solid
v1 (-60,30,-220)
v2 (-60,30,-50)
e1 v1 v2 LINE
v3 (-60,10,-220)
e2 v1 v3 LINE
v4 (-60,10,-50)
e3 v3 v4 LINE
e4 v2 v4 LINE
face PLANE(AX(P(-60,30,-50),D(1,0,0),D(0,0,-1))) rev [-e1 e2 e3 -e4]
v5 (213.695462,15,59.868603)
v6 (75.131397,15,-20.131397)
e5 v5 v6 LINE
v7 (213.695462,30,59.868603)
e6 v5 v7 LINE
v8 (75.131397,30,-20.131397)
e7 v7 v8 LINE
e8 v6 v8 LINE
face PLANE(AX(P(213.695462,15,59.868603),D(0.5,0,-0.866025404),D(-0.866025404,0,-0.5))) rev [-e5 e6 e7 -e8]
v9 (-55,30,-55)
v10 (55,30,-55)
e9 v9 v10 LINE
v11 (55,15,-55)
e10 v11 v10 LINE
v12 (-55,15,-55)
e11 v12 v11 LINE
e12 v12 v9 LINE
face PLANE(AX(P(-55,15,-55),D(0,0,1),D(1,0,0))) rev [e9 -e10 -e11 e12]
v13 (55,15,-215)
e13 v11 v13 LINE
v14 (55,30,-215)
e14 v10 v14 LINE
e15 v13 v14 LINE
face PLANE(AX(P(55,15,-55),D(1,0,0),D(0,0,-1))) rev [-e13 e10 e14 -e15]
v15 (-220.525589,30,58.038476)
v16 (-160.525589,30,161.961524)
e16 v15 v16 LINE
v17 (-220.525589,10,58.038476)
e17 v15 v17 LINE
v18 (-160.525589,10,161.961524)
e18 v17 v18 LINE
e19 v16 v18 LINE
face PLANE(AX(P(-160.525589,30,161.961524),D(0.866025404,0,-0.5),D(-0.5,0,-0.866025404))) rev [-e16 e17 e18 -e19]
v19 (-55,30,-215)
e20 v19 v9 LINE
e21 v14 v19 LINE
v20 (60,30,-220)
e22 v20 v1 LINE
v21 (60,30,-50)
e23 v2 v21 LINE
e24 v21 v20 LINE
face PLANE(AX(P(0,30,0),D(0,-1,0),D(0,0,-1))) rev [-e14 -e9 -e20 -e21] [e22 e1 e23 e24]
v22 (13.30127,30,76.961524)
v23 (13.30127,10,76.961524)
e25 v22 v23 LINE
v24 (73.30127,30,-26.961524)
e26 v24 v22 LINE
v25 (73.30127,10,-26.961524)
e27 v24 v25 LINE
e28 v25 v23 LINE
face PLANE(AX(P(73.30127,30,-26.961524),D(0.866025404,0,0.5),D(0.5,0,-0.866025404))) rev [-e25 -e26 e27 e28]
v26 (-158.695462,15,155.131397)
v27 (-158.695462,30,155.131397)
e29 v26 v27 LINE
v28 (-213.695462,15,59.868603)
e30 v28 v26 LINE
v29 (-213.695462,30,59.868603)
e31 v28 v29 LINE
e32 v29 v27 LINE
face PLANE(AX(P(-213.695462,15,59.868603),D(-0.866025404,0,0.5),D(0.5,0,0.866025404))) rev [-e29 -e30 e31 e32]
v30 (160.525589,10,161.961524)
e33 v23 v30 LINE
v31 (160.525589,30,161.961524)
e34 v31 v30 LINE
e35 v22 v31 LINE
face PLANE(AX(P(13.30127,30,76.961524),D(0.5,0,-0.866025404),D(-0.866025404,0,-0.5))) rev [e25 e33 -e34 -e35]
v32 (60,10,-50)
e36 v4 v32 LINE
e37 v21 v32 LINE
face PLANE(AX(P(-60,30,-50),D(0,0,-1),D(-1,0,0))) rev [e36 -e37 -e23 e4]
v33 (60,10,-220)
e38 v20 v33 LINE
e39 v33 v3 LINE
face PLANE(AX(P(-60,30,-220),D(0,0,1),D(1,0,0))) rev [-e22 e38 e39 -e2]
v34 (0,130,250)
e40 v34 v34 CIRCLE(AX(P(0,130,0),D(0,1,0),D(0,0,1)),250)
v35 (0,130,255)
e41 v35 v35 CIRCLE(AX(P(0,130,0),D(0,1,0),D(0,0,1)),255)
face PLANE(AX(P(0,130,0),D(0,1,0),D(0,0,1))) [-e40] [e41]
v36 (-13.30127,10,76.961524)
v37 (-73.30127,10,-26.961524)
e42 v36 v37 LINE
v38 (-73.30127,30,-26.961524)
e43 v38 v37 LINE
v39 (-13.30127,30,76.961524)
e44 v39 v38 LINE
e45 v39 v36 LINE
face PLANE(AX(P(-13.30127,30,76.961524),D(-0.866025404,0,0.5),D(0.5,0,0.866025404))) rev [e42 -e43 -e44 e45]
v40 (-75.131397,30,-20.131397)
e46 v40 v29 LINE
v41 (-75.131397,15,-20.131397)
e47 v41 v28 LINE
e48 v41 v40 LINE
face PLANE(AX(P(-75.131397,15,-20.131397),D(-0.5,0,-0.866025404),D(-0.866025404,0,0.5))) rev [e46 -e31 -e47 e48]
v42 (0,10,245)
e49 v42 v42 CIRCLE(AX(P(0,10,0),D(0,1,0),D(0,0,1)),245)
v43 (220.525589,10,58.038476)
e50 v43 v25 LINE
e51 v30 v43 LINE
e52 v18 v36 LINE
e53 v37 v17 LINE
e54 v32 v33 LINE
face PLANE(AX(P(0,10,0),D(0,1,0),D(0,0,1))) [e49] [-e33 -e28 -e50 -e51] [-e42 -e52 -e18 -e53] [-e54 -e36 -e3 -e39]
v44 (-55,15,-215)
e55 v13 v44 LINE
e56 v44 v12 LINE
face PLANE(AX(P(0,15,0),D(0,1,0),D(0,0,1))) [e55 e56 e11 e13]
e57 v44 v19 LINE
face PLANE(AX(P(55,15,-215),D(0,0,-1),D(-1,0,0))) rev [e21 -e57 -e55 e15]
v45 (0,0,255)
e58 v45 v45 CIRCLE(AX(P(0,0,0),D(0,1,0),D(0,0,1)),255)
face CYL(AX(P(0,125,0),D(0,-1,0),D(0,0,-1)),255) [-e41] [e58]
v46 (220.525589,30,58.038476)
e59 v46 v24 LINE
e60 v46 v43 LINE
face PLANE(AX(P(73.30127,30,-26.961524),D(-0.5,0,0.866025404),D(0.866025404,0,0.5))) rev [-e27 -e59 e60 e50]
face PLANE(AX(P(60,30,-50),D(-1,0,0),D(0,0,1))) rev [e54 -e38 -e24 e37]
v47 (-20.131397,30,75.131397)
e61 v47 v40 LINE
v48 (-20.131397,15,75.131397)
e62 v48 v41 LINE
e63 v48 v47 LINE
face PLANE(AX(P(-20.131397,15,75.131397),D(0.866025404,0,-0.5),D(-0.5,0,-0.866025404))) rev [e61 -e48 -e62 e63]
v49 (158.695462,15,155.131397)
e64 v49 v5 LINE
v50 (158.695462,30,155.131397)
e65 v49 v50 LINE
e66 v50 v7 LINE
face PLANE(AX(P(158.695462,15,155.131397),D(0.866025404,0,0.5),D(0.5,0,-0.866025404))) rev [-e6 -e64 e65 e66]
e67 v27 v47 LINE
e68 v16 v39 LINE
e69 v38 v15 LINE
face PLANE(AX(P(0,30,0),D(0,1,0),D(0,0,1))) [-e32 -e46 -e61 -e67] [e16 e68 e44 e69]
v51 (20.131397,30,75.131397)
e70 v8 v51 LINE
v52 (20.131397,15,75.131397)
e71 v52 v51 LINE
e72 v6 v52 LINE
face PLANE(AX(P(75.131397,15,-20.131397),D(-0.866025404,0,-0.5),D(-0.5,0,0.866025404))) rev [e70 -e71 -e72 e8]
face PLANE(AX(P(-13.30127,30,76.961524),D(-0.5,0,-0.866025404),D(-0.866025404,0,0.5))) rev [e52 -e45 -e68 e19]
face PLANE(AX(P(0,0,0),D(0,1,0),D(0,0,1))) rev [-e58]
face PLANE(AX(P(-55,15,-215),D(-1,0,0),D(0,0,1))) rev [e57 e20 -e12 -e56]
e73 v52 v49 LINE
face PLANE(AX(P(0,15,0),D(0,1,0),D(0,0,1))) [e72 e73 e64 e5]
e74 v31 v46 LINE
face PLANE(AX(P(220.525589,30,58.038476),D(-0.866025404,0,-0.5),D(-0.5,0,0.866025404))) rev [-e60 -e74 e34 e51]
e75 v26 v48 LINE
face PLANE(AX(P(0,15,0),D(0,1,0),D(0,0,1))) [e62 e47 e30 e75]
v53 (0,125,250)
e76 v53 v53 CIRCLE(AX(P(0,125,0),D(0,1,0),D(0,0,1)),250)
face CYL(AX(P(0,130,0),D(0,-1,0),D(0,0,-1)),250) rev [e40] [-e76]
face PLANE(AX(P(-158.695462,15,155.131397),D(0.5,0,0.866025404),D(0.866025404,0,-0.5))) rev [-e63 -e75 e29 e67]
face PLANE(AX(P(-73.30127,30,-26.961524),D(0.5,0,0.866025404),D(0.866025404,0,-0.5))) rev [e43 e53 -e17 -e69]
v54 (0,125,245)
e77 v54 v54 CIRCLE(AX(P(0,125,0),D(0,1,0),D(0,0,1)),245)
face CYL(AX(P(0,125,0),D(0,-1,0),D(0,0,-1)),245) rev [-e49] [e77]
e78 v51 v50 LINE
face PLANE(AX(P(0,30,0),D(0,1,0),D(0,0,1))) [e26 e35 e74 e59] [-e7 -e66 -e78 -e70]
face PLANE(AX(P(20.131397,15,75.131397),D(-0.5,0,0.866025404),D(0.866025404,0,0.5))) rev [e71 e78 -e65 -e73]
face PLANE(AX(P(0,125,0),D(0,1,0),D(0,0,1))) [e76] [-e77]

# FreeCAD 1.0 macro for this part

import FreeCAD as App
import Part
import Sketcher
Q = App.Units.Quantity


def faces_at(feature, points):
    """Names of the faces that lie closest to the given points."""
    faces = feature.Shape.Faces
    near = lambda p: min(range(len(faces)), key=lambda i: faces[i].distToShape(Part.Vertex(*p))[0])
    return sorted({f"Face{near(p) + 1}" for p in points})


def add_polygon(sketch, points):
    """Adds a closed chain of lines whose ends are joined by coincident constraints."""
    first, n = sketch.GeometryCount, len(points)
    for a, b in zip(points, points[1:] + points[:1]):
        sketch.addGeometry(Part.LineSegment(App.Vector(*a, 0), App.Vector(*b, 0)), False)
    for i in range(n):
        sketch.addConstraint(Sketcher.Constraint("Coincident", first + i, 2, first + (i + 1) % n, 1))

doc = App.newDocument("Part")
body = doc.addObject("PartDesign::Body", "Body")

# Sketch on XZ plane
sketch1 = body.newObject("Sketcher::SketchObject", "Sketch")
sketch1.AttachmentSupport = (doc.getObject("XZ_Plane"), [""])
sketch1.MapMode = "FlatFace"
sketch1.addGeometry(Part.Circle(App.Vector(0, 0, 0), App.Vector(0, 0, 1), 255), False)
sketch1.addConstraint([
    Sketcher.Constraint("Coincident", 0, 3, -1, 1),
    Sketcher.Constraint("Diameter", 0, Q("510 mm")),
])
pad1 = body.newObject("PartDesign::Pad", "Pad")
pad1.Profile = sketch1
pad1.Length = 125
pad1.Reversed = True
doc.recompute()

thickness = body.newObject("PartDesign::Thickness", "Thickness")
thickness.Base = (pad1, faces_at(pad1, [(0, 125, 0)]))
thickness.Value = 10
thickness.Reversed = True
thickness.Join = "Intersection"

# Sketch on XZ plane
sketch2 = body.newObject("Sketcher::SketchObject", "Sketch001")
sketch2.AttachmentSupport = (doc.getObject("XZ_Plane"), [""])
sketch2.MapMode = "FlatFace"
sketch2.AttachmentOffset = App.Placement(App.Vector(0, 0, -10), App.Rotation())
add_polygon(sketch2, [(-60, -220), (-60, -50), (60, -50), (60, -220)])  # lines 0-3
add_polygon(sketch2, [(221, 58), (73, -27), (13, 77), (161, 162)])  # lines 4-7
add_polygon(sketch2, [(-161, 162), (-13, 77), (-73, -27), (-221, 58)])  # lines 8-11
sketch2.addConstraint([
    Sketcher.Constraint("Vertical", 0),
    Sketcher.Constraint("Horizontal", 1),
    Sketcher.Constraint("Vertical", 2),
    Sketcher.Constraint("Horizontal", 3),
    Sketcher.Constraint("Symmetric", 5, 2, 8, 2, -2),
    Sketcher.Constraint("Symmetric", 4, 2, 9, 2, -2),
    Sketcher.Constraint("Symmetric", 7, 2, 10, 2, -2),
    Sketcher.Constraint("Symmetric", 6, 2, 11, 2, -2),
    Sketcher.Constraint("Perpendicular", 4, 5),
    Sketcher.Constraint("Perpendicular", 5, 6),
    Sketcher.Constraint("Perpendicular", 6, 7),
    Sketcher.Constraint("DistanceX", 1, 1, 1, 2, Q("120 mm")),
    Sketcher.Constraint("DistanceY", 0, 1, 0, 2, Q("170 mm")),
    Sketcher.Constraint("Angle", 4, Q("-150 deg")),
    Sketcher.Constraint("Distance", 4, Q("170 mm")),
    Sketcher.Constraint("Distance", 5, Q("120 mm")),
    Sketcher.Constraint("DistanceX", 0, 2, -1, 1, Q("60 mm")),
    Sketcher.Constraint("DistanceY", 0, 2, -1, 1, Q("50 mm")),
    Sketcher.Constraint("DistanceX", -1, 1, 4, 2, Q("73.30127 mm")),
    Sketcher.Constraint("DistanceY", 4, 2, -1, 1, Q("26.961524 mm")),
])
pad2 = body.newObject("PartDesign::Pad", "Pad001")
pad2.Profile = sketch2
pad2.Length = 20
pad2.Reversed = True

# Sketch on XZ plane
sketch3 = body.newObject("Sketcher::SketchObject", "Sketch002")
sketch3.AttachmentSupport = (doc.getObject("XZ_Plane"), [""])
sketch3.MapMode = "FlatFace"
sketch3.AttachmentOffset = App.Placement(App.Vector(0, 0, -125), App.Rotation())
sketch3.addGeometry([
    Part.Circle(App.Vector(0, 0, 0), App.Vector(0, 0, 1), 255),
    Part.Circle(App.Vector(0, 0, 0), App.Vector(0, 0, 1), 250),
], False)
sketch3.addConstraint([
    Sketcher.Constraint("Coincident", 0, 3, -1, 1),
    Sketcher.Constraint("Coincident", 1, 3, -1, 1),
    Sketcher.Constraint("Diameter", 0, Q("510 mm")),
    Sketcher.Constraint("Diameter", 1, Q("500 mm")),
])
pad3 = body.newObject("PartDesign::Pad", "Pad002")
pad3.Profile = sketch3
pad3.Length = 5
pad3.Reversed = True

# Sketch on XZ plane
sketch4 = body.newObject("Sketcher::SketchObject", "Sketch003")
sketch4.AttachmentSupport = (doc.getObject("XZ_Plane"), [""])
sketch4.MapMode = "FlatFace"
sketch4.AttachmentOffset = App.Placement(App.Vector(0, 0, -30), App.Rotation())
add_polygon(sketch4, [(20, 75), (159, 155), (214, 60), (75, -20)])  # lines 0-3
add_polygon(sketch4, [(-55, -215), (-55, -55), (55, -55), (55, -215)])  # lines 4-7
add_polygon(sketch4, [(-75, -20), (-214, 60), (-159, 155), (-20, 75)])  # lines 8-11
sketch4.addConstraint([
    Sketcher.Constraint("Vertical", 4),
    Sketcher.Constraint("Horizontal", 5),
    Sketcher.Constraint("Vertical", 6),
    Sketcher.Constraint("Horizontal", 7),
    Sketcher.Constraint("Symmetric", 1, 2, 8, 2, -2),
    Sketcher.Constraint("Symmetric", 0, 2, 9, 2, -2),
    Sketcher.Constraint("Symmetric", 3, 2, 10, 2, -2),
    Sketcher.Constraint("Symmetric", 2, 2, 11, 2, -2),
    Sketcher.Constraint("Perpendicular", 0, 1),
    Sketcher.Constraint("Perpendicular", 1, 2),
    Sketcher.Constraint("Perpendicular", 2, 3),
    Sketcher.Constraint("DistanceX", 5, 1, 5, 2, Q("110 mm")),
    Sketcher.Constraint("DistanceY", 4, 1, 4, 2, Q("160 mm")),
    Sketcher.Constraint("Angle", 0, Q("30 deg")),
    Sketcher.Constraint("Distance", 0, Q("160 mm")),
    Sketcher.Constraint("Distance", 1, Q("110 mm")),
    Sketcher.Constraint("DistanceX", 4, 2, -1, 1, Q("55 mm")),
    Sketcher.Constraint("DistanceY", 4, 2, -1, 1, Q("55 mm")),
    Sketcher.Constraint("DistanceX", -1, 1, 0, 2, Q("158.695462 mm")),
    Sketcher.Constraint("DistanceY", -1, 1, 0, 2, Q("155.131397 mm")),
])
pocket1 = body.newObject("PartDesign::Pocket", "Pocket")
pocket1.Profile = sketch4
pocket1.Length = 15
pocket1.Reversed = True

doc.recompute()
